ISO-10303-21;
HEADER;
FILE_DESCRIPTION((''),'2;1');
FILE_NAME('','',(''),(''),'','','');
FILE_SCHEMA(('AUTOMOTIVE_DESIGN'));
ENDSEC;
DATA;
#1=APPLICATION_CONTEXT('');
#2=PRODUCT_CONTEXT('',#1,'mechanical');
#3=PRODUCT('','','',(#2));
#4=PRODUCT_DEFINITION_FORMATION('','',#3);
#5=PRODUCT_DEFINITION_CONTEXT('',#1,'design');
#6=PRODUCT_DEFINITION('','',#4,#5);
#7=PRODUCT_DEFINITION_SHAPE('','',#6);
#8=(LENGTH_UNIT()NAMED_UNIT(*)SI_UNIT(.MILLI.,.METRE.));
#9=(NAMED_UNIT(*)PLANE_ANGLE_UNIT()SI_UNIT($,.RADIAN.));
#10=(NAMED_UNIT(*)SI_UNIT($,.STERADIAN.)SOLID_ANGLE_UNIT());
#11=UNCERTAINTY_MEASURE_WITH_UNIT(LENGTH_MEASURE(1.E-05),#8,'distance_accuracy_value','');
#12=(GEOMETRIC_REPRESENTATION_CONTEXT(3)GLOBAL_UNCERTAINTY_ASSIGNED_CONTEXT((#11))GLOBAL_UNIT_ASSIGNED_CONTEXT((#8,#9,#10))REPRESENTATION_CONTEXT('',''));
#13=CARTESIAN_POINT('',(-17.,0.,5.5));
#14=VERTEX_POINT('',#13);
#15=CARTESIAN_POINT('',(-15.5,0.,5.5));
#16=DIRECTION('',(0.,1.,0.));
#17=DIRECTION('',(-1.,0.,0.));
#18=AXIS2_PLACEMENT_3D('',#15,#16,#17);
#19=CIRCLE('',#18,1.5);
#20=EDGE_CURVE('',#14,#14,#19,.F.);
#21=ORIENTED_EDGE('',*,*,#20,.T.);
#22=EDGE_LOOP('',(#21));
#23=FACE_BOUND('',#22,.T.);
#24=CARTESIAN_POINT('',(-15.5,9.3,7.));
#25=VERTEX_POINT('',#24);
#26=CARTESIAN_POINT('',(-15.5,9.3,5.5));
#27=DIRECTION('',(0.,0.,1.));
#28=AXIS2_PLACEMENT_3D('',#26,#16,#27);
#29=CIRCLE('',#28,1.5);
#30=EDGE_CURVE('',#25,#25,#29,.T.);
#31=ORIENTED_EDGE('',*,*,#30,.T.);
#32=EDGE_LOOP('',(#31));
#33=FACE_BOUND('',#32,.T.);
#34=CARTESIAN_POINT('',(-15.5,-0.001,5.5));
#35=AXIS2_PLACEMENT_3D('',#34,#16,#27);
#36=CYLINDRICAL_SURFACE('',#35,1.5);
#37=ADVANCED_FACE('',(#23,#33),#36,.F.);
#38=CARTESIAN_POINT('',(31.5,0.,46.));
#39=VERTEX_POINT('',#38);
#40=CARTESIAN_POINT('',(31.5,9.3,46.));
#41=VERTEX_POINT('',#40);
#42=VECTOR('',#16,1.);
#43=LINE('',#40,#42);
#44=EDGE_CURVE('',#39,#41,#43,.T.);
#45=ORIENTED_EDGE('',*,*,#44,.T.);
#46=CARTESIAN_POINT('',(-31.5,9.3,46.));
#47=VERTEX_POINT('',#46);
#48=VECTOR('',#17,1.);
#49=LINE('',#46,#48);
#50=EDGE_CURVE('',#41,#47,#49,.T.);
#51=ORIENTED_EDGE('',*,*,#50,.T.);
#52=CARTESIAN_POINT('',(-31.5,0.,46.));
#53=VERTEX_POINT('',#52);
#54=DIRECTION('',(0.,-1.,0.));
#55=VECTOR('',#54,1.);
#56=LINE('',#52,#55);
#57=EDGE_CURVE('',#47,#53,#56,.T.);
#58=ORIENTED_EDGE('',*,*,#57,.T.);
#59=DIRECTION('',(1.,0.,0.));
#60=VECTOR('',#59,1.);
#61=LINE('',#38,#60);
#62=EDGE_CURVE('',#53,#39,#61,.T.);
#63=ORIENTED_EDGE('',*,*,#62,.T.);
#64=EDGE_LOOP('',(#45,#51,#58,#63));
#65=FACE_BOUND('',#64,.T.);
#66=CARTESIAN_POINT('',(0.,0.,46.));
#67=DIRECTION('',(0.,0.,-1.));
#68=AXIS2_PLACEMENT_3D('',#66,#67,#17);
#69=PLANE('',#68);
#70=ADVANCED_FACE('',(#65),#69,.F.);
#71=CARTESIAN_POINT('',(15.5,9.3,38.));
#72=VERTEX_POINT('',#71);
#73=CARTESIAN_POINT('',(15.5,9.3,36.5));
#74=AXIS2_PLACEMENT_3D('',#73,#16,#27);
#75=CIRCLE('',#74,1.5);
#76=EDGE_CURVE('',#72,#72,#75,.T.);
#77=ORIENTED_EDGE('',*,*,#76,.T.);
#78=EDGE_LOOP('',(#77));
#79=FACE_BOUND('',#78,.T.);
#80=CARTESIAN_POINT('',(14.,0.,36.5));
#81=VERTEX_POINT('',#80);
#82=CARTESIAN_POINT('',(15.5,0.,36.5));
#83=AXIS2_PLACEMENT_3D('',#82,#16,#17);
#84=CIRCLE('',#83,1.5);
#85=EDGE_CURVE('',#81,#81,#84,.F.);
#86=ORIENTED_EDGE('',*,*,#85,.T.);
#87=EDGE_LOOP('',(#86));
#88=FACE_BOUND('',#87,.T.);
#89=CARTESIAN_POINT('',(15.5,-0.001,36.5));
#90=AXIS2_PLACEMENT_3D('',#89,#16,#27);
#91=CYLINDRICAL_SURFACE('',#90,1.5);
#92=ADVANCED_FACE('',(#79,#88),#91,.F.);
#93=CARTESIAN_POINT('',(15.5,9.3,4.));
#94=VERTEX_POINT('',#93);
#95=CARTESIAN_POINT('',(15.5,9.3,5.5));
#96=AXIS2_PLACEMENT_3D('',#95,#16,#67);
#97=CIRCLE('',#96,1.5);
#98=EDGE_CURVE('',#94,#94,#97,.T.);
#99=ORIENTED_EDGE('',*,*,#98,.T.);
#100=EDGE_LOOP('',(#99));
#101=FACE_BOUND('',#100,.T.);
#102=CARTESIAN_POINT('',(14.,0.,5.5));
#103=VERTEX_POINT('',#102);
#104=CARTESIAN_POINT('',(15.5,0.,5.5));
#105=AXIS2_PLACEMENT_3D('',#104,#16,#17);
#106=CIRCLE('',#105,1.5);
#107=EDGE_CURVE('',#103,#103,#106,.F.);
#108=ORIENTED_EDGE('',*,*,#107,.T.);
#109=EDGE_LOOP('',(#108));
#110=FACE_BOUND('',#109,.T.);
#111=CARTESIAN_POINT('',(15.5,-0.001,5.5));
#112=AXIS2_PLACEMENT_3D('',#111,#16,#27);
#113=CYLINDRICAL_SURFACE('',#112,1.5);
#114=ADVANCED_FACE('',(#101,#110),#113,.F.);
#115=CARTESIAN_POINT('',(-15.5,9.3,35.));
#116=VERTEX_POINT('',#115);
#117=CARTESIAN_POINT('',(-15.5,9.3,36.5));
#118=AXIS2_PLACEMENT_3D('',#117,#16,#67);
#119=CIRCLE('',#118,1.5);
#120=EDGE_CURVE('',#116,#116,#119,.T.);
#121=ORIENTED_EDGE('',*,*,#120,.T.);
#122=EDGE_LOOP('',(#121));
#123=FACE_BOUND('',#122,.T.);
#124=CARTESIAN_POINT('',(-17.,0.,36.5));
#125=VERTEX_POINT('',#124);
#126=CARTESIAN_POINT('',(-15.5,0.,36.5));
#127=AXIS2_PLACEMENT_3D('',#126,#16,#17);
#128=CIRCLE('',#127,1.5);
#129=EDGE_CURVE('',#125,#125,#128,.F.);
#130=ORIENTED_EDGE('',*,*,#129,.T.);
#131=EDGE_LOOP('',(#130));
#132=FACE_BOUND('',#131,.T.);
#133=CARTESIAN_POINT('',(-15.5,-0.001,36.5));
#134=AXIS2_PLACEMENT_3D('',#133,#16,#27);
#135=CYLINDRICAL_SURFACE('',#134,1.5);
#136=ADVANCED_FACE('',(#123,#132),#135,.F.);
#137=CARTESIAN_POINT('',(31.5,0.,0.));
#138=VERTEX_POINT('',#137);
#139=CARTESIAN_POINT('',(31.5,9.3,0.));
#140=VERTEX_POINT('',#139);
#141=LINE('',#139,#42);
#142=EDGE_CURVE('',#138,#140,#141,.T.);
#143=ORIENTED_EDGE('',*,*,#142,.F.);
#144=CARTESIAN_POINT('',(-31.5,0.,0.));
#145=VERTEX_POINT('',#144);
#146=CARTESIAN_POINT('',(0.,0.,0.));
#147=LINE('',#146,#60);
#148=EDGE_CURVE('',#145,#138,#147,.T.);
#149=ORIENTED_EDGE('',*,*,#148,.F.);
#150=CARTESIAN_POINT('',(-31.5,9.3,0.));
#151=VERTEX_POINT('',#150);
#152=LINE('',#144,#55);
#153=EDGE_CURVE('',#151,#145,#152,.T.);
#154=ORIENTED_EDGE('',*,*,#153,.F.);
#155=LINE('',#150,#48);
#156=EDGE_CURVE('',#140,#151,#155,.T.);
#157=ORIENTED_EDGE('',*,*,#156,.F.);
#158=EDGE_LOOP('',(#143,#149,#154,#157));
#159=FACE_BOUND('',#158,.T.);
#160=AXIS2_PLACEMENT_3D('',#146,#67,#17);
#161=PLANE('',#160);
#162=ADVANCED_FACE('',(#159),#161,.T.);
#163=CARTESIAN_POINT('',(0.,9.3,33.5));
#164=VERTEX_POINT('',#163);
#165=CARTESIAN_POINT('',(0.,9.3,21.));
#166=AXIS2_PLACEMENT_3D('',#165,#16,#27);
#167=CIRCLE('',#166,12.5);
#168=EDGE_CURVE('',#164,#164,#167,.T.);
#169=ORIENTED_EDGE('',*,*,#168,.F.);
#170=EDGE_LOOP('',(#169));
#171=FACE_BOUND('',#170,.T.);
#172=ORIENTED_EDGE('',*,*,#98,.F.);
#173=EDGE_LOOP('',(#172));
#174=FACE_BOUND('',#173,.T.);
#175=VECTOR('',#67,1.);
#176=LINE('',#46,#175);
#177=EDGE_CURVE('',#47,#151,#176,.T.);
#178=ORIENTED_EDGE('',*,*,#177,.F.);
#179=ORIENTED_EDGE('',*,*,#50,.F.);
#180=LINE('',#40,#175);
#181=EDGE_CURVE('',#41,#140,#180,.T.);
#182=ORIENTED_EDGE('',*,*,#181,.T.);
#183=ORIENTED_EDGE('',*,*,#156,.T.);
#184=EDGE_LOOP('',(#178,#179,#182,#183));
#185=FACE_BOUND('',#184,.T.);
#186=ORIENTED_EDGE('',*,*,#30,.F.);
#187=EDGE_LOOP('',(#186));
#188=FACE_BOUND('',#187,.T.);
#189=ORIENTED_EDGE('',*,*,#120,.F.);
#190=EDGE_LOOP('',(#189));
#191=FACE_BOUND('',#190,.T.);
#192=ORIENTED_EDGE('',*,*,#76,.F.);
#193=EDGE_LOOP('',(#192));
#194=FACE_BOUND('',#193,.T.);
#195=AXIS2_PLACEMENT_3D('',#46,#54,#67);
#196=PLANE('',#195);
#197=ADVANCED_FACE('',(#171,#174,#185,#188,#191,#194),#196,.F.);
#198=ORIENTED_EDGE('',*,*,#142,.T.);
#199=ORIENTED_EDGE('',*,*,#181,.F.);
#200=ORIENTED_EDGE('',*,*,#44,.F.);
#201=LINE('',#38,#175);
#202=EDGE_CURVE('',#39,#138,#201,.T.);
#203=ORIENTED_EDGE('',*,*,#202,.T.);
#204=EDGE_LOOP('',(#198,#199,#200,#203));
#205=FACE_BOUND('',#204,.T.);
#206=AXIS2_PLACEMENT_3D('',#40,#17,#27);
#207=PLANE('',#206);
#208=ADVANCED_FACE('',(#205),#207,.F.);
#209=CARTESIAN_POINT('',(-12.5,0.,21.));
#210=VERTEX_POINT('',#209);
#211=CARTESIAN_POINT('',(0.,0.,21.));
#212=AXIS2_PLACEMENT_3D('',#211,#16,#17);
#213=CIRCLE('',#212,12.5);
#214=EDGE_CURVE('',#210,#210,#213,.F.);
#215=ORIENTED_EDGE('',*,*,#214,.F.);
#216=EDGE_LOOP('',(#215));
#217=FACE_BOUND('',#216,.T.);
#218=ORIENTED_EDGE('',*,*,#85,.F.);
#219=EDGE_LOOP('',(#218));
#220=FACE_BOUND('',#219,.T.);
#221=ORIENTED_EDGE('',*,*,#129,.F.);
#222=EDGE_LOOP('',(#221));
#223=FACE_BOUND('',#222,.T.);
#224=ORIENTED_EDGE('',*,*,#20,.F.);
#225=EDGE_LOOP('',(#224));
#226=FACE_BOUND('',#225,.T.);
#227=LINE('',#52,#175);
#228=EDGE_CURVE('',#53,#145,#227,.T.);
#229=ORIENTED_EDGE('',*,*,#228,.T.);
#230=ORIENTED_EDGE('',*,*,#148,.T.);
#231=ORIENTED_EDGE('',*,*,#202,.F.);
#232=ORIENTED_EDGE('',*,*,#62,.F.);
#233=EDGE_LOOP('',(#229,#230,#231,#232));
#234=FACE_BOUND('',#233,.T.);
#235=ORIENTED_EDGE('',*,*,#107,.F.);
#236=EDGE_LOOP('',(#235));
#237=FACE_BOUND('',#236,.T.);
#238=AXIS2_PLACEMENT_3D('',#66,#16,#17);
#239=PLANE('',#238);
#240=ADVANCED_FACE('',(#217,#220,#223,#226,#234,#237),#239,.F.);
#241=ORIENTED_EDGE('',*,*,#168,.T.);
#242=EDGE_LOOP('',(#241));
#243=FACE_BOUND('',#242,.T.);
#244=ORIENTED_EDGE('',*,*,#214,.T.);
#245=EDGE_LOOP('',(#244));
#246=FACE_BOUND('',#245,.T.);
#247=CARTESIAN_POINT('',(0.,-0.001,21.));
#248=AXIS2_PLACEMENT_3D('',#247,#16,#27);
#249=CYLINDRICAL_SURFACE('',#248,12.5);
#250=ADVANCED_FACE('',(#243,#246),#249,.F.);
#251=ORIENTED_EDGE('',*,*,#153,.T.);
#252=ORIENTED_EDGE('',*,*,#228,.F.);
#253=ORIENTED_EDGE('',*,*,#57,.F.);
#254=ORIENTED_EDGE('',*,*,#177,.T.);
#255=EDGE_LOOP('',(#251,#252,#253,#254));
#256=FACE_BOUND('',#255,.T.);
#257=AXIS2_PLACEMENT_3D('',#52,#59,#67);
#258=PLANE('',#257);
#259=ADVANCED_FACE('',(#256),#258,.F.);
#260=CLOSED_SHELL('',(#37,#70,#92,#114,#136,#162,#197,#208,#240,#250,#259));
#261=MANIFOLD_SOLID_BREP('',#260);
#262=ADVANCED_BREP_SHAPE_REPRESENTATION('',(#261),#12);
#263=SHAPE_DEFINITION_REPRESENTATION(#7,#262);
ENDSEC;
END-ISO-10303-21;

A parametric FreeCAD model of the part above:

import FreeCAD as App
import Part
import Sketcher

V = App.Vector
Q = App.Units.Quantity

doc = App.newDocument("Part")
params = doc.addObject("Spreadsheet::Sheet", "Params")
for row, (alias, value) in enumerate([
    ("sketch1_width", "63 mm"),
    ("sketch1_height", "9.3 mm"),
    ("pad1_length", "46 mm"),
    ("sketch2_diameter", "25 mm"),
    ("sketch3_diameter", "3 mm"),
    ("sketch4_diameter", "3 mm"),
    ("sketch5_diameter", "3 mm"),
    ("sketch6_diameter", "3 mm"),
], start=1):
    params.set(f"A{row}", alias)
    params.set(f"B{row}", "=" + value)
    params.setAlias(f"B{row}", alias)

body = doc.addObject("PartDesign::Body", "Body")

# Sketch on XY plane
sketch1 = doc.addObject("Sketcher::SketchObject", "Sketch")
body.addObject(sketch1)
sketch1.AttachmentSupport = (doc.XY_Plane, [""])
sketch1.MapMode = "FlatFace"
sketch1.addGeometry([
    Part.LineSegment(V(-32, 0, 0), V(32, 0, 0)),
    Part.LineSegment(V(32, 0, 0), V(32, 9, 0)),
    Part.LineSegment(V(32, 9, 0), V(-32, 9, 0)),
    Part.LineSegment(V(-32, 9, 0), V(-32, 0, 0)),
], False)
sketch1.addConstraint([
    Sketcher.Constraint("Coincident", 0, 2, 1, 1),
    Sketcher.Constraint("Coincident", 1, 2, 2, 1),
    Sketcher.Constraint("Coincident", 2, 2, 3, 1),
    Sketcher.Constraint("Coincident", 3, 2, 0, 1),
    Sketcher.Constraint("Horizontal", 0),
    Sketcher.Constraint("Vertical", 1),
    Sketcher.Constraint("Horizontal", 2),
    Sketcher.Constraint("Vertical", 3),
    Sketcher.Constraint("Symmetric", 0, 2, 3, 2, -1, 1),
    Sketcher.Constraint("DistanceX", 0, 1, 0, 2, Q("63 mm")),
    Sketcher.Constraint("DistanceY", 1, 1, 1, 2, Q("9.3 mm")),
])
sketch1.setExpression("Constraints[9]", "Params.sketch1_width")
sketch1.setExpression("Constraints[10]", "Params.sketch1_height")
pad1 = doc.addObject("PartDesign::Pad", "Pad")
body.addObject(pad1)
pad1.Profile = sketch1
pad1.setExpression("Length", "Params.pad1_length")

# Sketch on XZ plane
sketch2 = doc.addObject("Sketcher::SketchObject", "Sketch001")
body.addObject(sketch2)
sketch2.AttachmentSupport = (doc.XZ_Plane, [""])
sketch2.MapMode = "FlatFace"
sketch2.AttachmentOffset = App.Placement(V(0, 0, -9.3), App.Rotation())
sketch2.addGeometry(Part.Circle(V(0, 21, 0), V(0, 0, 1), 12), False)
sketch2.addConstraint([
    Sketcher.Constraint("PointOnObject", 0, 3, -2),
    Sketcher.Constraint("Diameter", 0, Q("25 mm")),
    Sketcher.Constraint("DistanceY", -1, 1, 0, 3, Q("21 mm")),
])
sketch2.setExpression("Constraints[1]", "Params.sketch2_diameter")
pocket1 = doc.addObject("PartDesign::Pocket", "Pocket")
body.addObject(pocket1)
pocket1.Profile = sketch2
pocket1.Type = "UpToFirst"
pocket1.Reversed = True

# Sketch on XZ plane
sketch3 = doc.addObject("Sketcher::SketchObject", "Sketch002")
body.addObject(sketch3)
sketch3.AttachmentSupport = (doc.XZ_Plane, [""])
sketch3.MapMode = "FlatFace"
sketch3.AttachmentOffset = App.Placement(V(0, 0, -9.3), App.Rotation())
sketch3.addGeometry(Part.Circle(V(-15.5, 5.5, 0), V(0, 0, 1), 1.5), False)
sketch3.addConstraint([
    Sketcher.Constraint("Diameter", 0, Q("3 mm")),
    Sketcher.Constraint("DistanceX", 0, 3, -1, 1, Q("15.5 mm")),
    Sketcher.Constraint("DistanceY", -1, 1, 0, 3, Q("5.5 mm")),
])
sketch3.setExpression("Constraints[0]", "Params.sketch3_diameter")
pocket2 = doc.addObject("PartDesign::Pocket", "Pocket001")
body.addObject(pocket2)
pocket2.Profile = sketch3
pocket2.Type = "UpToFirst"
pocket2.Reversed = True

# Sketch on XZ plane
sketch4 = doc.addObject("Sketcher::SketchObject", "Sketch003")
body.addObject(sketch4)
sketch4.AttachmentSupport = (doc.XZ_Plane, [""])
sketch4.MapMode = "FlatFace"
sketch4.AttachmentOffset = App.Placement(V(0, 0, -9.3), App.Rotation())
sketch4.addGeometry(Part.Circle(V(-15.5, 36.5, 0), V(0, 0, 1), 1.5), False)
sketch4.addConstraint([
    Sketcher.Constraint("Diameter", 0, Q("3 mm")),
    Sketcher.Constraint("DistanceX", 0, 3, -1, 1, Q("15.5 mm")),
    Sketcher.Constraint("DistanceY", -1, 1, 0, 3, Q("36.5 mm")),
])
sketch4.setExpression("Constraints[0]", "Params.sketch4_diameter")
pocket3 = doc.addObject("PartDesign::Pocket", "Pocket002")
body.addObject(pocket3)
pocket3.Profile = sketch4
pocket3.Type = "UpToFirst"
pocket3.Reversed = True

# Sketch on XZ plane
sketch5 = doc.addObject("Sketcher::SketchObject", "Sketch004")
body.addObject(sketch5)
sketch5.AttachmentSupport = (doc.XZ_Plane, [""])
sketch5.MapMode = "FlatFace"
sketch5.AttachmentOffset = App.Placement(V(0, 0, -9.3), App.Rotation())
sketch5.addGeometry(Part.Circle(V(15.5, 5.5, 0), V(0, 0, 1), 1.5), False)
sketch5.addConstraint([
    Sketcher.Constraint("Diameter", 0, Q("3 mm")),
    Sketcher.Constraint("DistanceX", -1, 1, 0, 3, Q("15.5 mm")),
    Sketcher.Constraint("DistanceY", -1, 1, 0, 3, Q("5.5 mm")),
])
sketch5.setExpression("Constraints[0]", "Params.sketch5_diameter")
pocket4 = doc.addObject("PartDesign::Pocket", "Pocket003")
body.addObject(pocket4)
pocket4.Profile = sketch5
pocket4.Type = "UpToFirst"
pocket4.Reversed = True

# Sketch on XZ plane
sketch6 = doc.addObject("Sketcher::SketchObject", "Sketch005")
body.addObject(sketch6)
sketch6.AttachmentSupport = (doc.XZ_Plane, [""])
sketch6.MapMode = "FlatFace"
sketch6.AttachmentOffset = App.Placement(V(0, 0, -9.3), App.Rotation())
sketch6.addGeometry(Part.Circle(V(15.5, 36.5, 0), V(0, 0, 1), 1.5), False)
sketch6.addConstraint([
    Sketcher.Constraint("Diameter", 0, Q("3 mm")),
    Sketcher.Constraint("DistanceX", -1, 1, 0, 3, Q("15.5 mm")),
    Sketcher.Constraint("DistanceY", -1, 1, 0, 3, Q("36.5 mm")),
])
sketch6.setExpression("Constraints[0]", "Params.sketch6_diameter")
pocket5 = doc.addObject("PartDesign::Pocket", "Pocket004")
body.addObject(pocket5)
pocket5.Profile = sketch6
pocket5.Type = "UpToFirst"
pocket5.Reversed = True

doc.recompute()
